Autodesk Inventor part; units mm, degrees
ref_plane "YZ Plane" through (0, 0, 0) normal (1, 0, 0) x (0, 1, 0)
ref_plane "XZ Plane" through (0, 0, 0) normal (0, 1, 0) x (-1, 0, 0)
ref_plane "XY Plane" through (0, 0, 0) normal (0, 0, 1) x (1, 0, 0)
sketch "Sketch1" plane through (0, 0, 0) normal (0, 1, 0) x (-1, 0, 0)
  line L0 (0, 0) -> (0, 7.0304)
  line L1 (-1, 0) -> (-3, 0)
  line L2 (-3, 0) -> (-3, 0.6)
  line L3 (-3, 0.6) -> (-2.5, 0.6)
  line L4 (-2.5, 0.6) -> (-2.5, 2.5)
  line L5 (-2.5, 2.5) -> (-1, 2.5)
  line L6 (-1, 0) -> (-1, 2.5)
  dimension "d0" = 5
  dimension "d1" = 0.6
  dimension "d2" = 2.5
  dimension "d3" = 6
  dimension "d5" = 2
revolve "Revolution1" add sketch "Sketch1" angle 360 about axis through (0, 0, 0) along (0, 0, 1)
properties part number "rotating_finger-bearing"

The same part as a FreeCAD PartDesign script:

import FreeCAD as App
import Part
import Sketcher

doc = App.newDocument("Part")
body = doc.addObject("PartDesign::Body", "Body")

# Sketch on XZ plane
sketch1 = body.newObject("Sketcher::SketchObject", "Sketch")
sketch1.AttachmentSupport = (doc.getObject("XZ_Plane"), [""])
sketch1.MapMode = "FlatFace"
sketch1.addGeometry([
    Part.LineSegment(App.Vector(3, 0, 0), App.Vector(1, 0, 0)),  # 0
    Part.LineSegment(App.Vector(1, 0, 0), App.Vector(1, 2.5, 0)),  # 1
    Part.LineSegment(App.Vector(1, 2.5, 0), App.Vector(2.5, 2.5, 0)),  # 2
    Part.LineSegment(App.Vector(2.5, 2.5, 0), App.Vector(2.5, 0.6, 0)),  # 3
    Part.LineSegment(App.Vector(2.5, 0.6, 0), App.Vector(3, 0.6, 0)),  # 4
    Part.LineSegment(App.Vector(3, 0.6, 0), App.Vector(3, 0, 0)),  # 5
], False)
sketch1.addConstraint([
    Sketcher.Constraint("Coincident", 0, 2, 1, 1),
    Sketcher.Constraint("Coincident", 1, 2, 2, 1),
    Sketcher.Constraint("Coincident", 2, 2, 3, 1),
    Sketcher.Constraint("Coincident", 3, 2, 4, 1),
    Sketcher.Constraint("Coincident", 4, 2, 5, 1),
    Sketcher.Constraint("Coincident", 5, 2, 0, 1),
    Sketcher.Constraint("Horizontal", 0),
    Sketcher.Constraint("Vertical", 1),
    Sketcher.Constraint("Horizontal", 2),
    Sketcher.Constraint("Vertical", 3),
    Sketcher.Constraint("Horizontal", 4),
    Sketcher.Constraint("Vertical", 5),
    Sketcher.Constraint("PointOnObject", 0, 2, -1),
    Sketcher.Constraint("DistanceX", 0, 2, 0, 1, 2.0),
    Sketcher.Constraint("DistanceY", 1, 1, 1, 2, 2.5),
    Sketcher.Constraint("DistanceY", 5, 2, 5, 1, 0.6),
    Sketcher.Constraint("DistanceX", -1, 1, 2, 2, 2.5),
    Sketcher.Constraint("DistanceX", 2, 1, 2, 2, 1.5),
])
revolution = body.newObject("PartDesign::Revolution", "Revolution")
revolution.Profile = sketch1
revolution.ReferenceAxis = (sketch1, ["V_Axis"])
revolution.Angle = 360

doc.recompute()
